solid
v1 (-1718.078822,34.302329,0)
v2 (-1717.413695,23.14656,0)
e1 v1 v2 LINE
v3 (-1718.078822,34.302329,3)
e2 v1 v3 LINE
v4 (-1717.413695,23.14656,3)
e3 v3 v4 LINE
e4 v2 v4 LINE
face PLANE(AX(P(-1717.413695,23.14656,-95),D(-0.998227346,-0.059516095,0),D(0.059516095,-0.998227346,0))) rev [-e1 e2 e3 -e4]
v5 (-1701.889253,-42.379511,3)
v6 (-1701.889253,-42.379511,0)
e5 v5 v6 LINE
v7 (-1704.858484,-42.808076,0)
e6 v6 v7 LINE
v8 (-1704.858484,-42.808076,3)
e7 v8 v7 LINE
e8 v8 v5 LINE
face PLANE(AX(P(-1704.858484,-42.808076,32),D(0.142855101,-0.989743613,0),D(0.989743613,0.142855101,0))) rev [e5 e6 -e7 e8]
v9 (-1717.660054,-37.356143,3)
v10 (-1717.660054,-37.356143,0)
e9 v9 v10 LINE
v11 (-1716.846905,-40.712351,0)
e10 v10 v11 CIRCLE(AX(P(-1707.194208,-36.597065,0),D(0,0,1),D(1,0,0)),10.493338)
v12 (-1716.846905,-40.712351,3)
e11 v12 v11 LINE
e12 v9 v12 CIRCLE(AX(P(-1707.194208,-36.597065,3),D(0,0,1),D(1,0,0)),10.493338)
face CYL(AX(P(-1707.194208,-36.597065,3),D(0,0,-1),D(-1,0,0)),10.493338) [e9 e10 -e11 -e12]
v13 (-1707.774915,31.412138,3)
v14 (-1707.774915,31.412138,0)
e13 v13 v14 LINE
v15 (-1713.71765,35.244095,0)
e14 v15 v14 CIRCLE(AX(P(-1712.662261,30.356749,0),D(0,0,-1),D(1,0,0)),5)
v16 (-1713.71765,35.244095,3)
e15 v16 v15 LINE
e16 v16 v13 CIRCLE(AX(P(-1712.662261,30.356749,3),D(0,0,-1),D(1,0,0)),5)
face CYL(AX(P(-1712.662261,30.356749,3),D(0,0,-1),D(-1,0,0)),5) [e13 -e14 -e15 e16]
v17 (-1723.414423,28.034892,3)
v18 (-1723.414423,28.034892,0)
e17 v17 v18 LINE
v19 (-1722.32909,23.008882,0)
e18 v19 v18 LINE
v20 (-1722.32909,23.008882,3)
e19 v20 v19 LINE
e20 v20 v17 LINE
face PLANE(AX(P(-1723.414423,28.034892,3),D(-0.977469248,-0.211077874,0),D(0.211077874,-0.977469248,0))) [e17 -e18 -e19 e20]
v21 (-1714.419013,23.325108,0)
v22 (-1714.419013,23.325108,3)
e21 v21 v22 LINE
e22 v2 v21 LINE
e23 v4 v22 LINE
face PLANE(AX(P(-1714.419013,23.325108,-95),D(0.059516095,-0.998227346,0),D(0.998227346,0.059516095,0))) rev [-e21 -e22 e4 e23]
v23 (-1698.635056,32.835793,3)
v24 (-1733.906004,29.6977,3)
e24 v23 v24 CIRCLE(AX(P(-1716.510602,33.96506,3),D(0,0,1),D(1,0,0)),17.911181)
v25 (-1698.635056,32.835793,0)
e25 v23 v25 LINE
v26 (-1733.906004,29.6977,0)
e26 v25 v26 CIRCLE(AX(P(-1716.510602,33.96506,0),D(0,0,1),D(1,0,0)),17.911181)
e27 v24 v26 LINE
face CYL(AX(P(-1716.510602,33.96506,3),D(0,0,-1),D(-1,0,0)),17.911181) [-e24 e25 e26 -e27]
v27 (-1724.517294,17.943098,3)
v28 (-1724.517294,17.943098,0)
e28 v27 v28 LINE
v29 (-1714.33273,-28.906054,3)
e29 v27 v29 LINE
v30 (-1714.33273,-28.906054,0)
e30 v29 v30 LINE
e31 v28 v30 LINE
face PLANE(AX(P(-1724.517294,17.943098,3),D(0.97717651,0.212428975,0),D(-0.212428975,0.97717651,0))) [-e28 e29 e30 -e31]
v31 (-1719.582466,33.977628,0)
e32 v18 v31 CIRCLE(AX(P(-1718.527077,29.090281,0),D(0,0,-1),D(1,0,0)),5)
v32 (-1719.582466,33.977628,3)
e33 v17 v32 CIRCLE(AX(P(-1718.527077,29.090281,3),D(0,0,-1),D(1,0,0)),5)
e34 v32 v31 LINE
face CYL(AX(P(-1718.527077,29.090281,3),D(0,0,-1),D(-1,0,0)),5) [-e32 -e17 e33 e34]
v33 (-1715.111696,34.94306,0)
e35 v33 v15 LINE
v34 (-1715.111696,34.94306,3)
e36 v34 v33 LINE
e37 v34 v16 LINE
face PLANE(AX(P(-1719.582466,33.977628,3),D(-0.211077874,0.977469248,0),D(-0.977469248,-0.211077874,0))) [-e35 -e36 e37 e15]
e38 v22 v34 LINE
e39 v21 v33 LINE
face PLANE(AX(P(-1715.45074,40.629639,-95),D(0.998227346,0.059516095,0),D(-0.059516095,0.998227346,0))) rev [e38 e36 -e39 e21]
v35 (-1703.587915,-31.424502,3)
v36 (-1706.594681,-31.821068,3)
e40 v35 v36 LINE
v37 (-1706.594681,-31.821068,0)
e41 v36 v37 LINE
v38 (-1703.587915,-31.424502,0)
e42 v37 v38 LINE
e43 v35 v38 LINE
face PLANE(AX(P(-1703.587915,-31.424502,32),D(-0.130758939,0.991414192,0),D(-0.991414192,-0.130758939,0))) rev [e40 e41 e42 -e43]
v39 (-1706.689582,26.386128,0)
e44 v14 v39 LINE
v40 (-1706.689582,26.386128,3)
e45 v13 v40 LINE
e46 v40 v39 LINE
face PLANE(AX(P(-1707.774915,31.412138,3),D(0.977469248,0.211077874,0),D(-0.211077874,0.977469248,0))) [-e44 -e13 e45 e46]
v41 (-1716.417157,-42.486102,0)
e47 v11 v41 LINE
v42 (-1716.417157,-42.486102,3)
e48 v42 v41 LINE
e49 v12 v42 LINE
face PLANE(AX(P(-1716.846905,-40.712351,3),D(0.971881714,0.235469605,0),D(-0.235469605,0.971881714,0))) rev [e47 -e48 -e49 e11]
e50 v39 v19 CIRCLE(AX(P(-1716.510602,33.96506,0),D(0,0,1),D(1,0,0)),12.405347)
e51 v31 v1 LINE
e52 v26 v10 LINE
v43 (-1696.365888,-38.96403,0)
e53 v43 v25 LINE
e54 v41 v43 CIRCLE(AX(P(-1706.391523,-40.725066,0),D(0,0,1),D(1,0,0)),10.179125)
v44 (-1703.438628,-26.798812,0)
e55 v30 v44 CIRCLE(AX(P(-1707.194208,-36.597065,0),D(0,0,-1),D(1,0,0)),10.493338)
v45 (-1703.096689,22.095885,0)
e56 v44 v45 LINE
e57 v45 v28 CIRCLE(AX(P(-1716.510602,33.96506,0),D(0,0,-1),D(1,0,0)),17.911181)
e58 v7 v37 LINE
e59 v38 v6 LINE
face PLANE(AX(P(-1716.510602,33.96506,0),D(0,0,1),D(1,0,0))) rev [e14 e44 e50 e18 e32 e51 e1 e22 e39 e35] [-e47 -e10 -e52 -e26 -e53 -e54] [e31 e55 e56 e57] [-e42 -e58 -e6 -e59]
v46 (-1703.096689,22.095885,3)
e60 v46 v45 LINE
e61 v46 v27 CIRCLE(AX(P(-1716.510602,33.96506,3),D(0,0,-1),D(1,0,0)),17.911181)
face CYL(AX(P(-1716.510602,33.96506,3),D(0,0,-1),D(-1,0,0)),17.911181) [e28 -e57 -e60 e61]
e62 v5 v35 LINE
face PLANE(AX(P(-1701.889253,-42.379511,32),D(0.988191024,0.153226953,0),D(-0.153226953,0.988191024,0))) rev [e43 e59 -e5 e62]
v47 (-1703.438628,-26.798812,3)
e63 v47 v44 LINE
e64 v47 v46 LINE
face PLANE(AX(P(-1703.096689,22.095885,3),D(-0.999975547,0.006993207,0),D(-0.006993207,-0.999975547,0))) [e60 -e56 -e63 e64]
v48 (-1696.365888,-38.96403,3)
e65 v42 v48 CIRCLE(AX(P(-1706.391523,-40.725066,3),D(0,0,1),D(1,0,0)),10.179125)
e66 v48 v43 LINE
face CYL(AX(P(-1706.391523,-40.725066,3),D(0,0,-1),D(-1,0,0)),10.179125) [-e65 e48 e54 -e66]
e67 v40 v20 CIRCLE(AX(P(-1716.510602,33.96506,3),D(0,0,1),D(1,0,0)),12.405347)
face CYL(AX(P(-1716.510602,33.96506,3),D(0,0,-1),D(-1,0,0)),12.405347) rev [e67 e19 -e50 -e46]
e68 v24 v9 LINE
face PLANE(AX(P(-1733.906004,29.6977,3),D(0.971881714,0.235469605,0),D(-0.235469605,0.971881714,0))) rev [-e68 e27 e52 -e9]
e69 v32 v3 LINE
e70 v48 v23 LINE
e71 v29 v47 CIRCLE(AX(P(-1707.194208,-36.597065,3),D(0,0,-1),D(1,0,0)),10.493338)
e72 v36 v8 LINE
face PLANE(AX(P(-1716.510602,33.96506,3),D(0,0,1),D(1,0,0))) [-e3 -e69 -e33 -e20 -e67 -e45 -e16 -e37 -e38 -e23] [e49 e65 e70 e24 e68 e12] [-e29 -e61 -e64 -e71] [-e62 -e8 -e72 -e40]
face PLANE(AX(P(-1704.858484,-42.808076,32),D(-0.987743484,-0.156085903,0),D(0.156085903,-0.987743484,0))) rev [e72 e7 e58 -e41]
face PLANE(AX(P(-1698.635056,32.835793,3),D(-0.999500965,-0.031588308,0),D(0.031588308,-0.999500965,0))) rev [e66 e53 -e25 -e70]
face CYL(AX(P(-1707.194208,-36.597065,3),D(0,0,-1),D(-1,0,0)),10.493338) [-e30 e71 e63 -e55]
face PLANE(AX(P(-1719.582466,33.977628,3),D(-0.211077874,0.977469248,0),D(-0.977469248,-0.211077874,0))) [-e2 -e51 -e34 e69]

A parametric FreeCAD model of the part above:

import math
import FreeCAD as App
import Part
import Sketcher
from FreeCAD import Vector

doc = App.newDocument("Part")
params = doc.addObject("Spreadsheet::Sheet", "Params")
for row, (alias, value) in enumerate([
    ("sketch1_radius", "5 mm"),
    ("sketch1_length", "6 mm"),
    ("pad1_length", "3 mm"),
    ("sketch2_length", "3 mm"),
    ("sketch2_length2", "10 mm"),
    ("pocket1_length", "98 mm"),
    ("sketch3_length", "3 mm"),
    ("pocket2_length", "32 mm"),
], start=1):
    params.set(f"A{row}", alias)
    params.set(f"B{row}", "=" + value)
    params.setAlias(f"B{row}", alias)

body = doc.addObject("PartDesign::Body", "Body")

sketch1 = body.newObject("Sketcher::SketchObject", "Sketch")
sketch1.AttachmentSupport = (doc.getObject("XY_Plane"), [""])
sketch1.MapMode = "FlatFace"
sketch1.addGeometry([
    Part.LineSegment(Vector(-1733.9, 29.7, 0), Vector(-1717.7, -37.4, 0)),
    Part.ArcOfCircle(Part.Circle(Vector(-1707.2, -36.6, 0), Vector(0, 0, 1), 10.5), math.radians(-175.85), math.radians(-156.91)),
    Part.LineSegment(Vector(-1716.8, -40.7, 0), Vector(-1716.4, -42.5, 0)),
    Part.ArcOfCircle(Part.Circle(Vector(-1706.4, -40.7, 0), Vector(0, 0, 1), 10.2), math.radians(-170), math.radians(10)),
    Part.LineSegment(Vector(-1696.4, -39, 0), Vector(-1698.6, 32.8, 0)),
    Part.ArcOfCircle(Part.Circle(Vector(-1716.5, 34, 0), Vector(0, 0, 1), 17.9), math.radians(-4), math.radians(194)),
    Part.ArcOfCircle(Part.Circle(Vector(-1716.5, 34, 0), Vector(0, 0, 1), 17.9), math.radians(-117), math.radians(-42)),
    Part.LineSegment(Vector(-1703.1, 22.1, 0), Vector(-1703.4, -26.8, 0)),
    Part.ArcOfCircle(Part.Circle(Vector(-1707.2, -36.6, 0), Vector(0, 0, 1), 10.5), math.radians(69), math.radians(133)),
    Part.LineSegment(Vector(-1714.3, -28.9, 0), Vector(-1724.5, 17.9, 0)),
    Part.LineSegment(Vector(-1713.7, 35.2, 0), Vector(-1719.6, 34, 0)),
    Part.ArcOfCircle(Part.Circle(Vector(-1718.5, 29.1, 0), Vector(0, 0, 1), 5), math.radians(102), math.radians(192)),
    Part.LineSegment(Vector(-1723.4, 28, 0), Vector(-1722.3, 23, 0)),
    Part.ArcOfCircle(Part.Circle(Vector(-1716.5, 34, 0), Vector(0, 0, 1), 12.4), math.radians(-38), math.radians(242)),
    Part.LineSegment(Vector(-1706.7, 26.4, 0), Vector(-1707.8, 31.4, 0)),
    Part.ArcOfCircle(Part.Circle(Vector(-1712.7, 30.4, 0), Vector(0, 0, 1), 5), math.radians(12), math.radians(102)),
], False)
sketch1.addConstraint([
    Sketcher.Constraint("Coincident", 0, 2, 1, 1),
    Sketcher.Constraint("Coincident", 1, 2, 2, 1),
    Sketcher.Constraint("Coincident", 2, 2, 3, 1),
    Sketcher.Constraint("Coincident", 3, 2, 4, 1),
    Sketcher.Constraint("Coincident", 4, 2, 5, 1),
    Sketcher.Constraint("Coincident", 5, 2, 0, 1),
    Sketcher.Constraint("Coincident", 6, 2, 7, 1),
    Sketcher.Constraint("Coincident", 7, 2, 8, 1),
    Sketcher.Constraint("Coincident", 8, 2, 9, 1),
    Sketcher.Constraint("Coincident", 9, 2, 6, 1),
    Sketcher.Constraint("Tangent", 10, 2, 11, 1),
    Sketcher.Constraint("Tangent", 11, 2, 12, 1),
    Sketcher.Constraint("Coincident", 12, 2, 13, 2),
    Sketcher.Constraint("Coincident", 13, 1, 14, 1),
    Sketcher.Constraint("Tangent", 14, 2, 15, 1),
    Sketcher.Constraint("Tangent", 15, 2, 10, 1),
    Sketcher.Constraint("Coincident", 6, 3, 5, 3),
    Sketcher.Constraint("Coincident", 8, 3, 1, 3),
    Sketcher.Constraint("Coincident", 13, 3, 5, 3),
    Sketcher.Constraint("Equal", 5, 6),
    Sketcher.Constraint("Equal", 1, 8),
    Sketcher.Constraint("Equal", 11, 15),
    Sketcher.Constraint("Parallel", 0, 2),
    Sketcher.Constraint("Perpendicular", 10, 12),
    Sketcher.Constraint("Parallel", 12, 14),
    Sketcher.Constraint("Equal", 12, 14),
    Sketcher.Constraint("Radius", 11, 5.0),
    Sketcher.Constraint("Distance", 10, 6.0),
    Sketcher.Constraint("Radius", 5, 17.911181),
    Sketcher.Constraint("Radius", 1, 10.493338),
    Sketcher.Constraint("Radius", 3, 10.179125),
    Sketcher.Constraint("Radius", 13, 12.405347),
    Sketcher.Constraint("DistanceY", 3, 3, 1, 3, 4.128001),
    Sketcher.Constraint("DistanceX", 5, 3, -1, 1, 1716.510602),
    Sketcher.Constraint("DistanceY", 2, 2, -1, 1, 42.486102),
    Sketcher.Constraint("DistanceY", -1, 1, 5, 2, 29.6977),
    Sketcher.Constraint("DistanceY", -1, 1, 9, 2, 17.943098),
    Sketcher.Constraint("DistanceY", 12, 2, 11, 3, 6.081399),
    Sketcher.Constraint("Distance", 0, 68.993831),
    Sketcher.Constraint("Distance", 2, 1.825068),
    Sketcher.Constraint("Distance", 4, 71.835671),
    Sketcher.Constraint("Distance", 12, 5.14186),
    Sketcher.Constraint("DistanceX", 1, 3, -1, 1, 1707.194208),
    Sketcher.Constraint("DistanceY", -1, 1, 5, 3, 33.96506),
    Sketcher.Constraint("DistanceX", 3, 2, -1, 1, 1696.365888),
    Sketcher.Constraint("DistanceY", 3, 2, -1, 1, 38.96403),
    Sketcher.Constraint("DistanceX", 6, 2, -1, 1, 1703.096689),
    Sketcher.Constraint("DistanceX", 8, 2, -1, 1, 1714.33273),
    Sketcher.Constraint("DistanceX", 1, 3, 7, 2, 3.75558),
])
sketch1.setExpression("Constraints[26]", "Params.sketch1_radius")
sketch1.setExpression("Constraints[27]", "Params.sketch1_length")
pad1 = body.newObject("PartDesign::Pad", "Pad")
pad1.Profile = sketch1
pad1.setExpression("Length", "Params.pad1_length")

sketch2 = body.newObject("Sketcher::SketchObject", "Sketch001")
sketch2.AttachmentSupport = (doc.getObject("XY_Plane"), [""])
sketch2.MapMode = "FlatFace"
sketch2.AttachmentOffset = App.Placement(Vector(0, 0, 3), App.Rotation())
sketch2.addGeometry([
    Part.LineSegment(Vector(-1714.4, 23.3, 0), Vector(-1715.5, 40.6, 0)),
    Part.LineSegment(Vector(-1715.5, 40.6, 0), Vector(-1718.4, 40.5, 0)),
    Part.LineSegment(Vector(-1718.4, 40.5, 0), Vector(-1718, 33.1, 0)),
    Part.LineSegment(Vector(-1718, 33.1, 0), Vector(-1717.4, 23.1, 0)),
    Part.LineSegment(Vector(-1717.4, 23.1, 0), Vector(-1714.4, 23.3, 0)),
], False)
sketch2.addConstraint([
    Sketcher.Constraint("Coincident", 0, 2, 1, 1),
    Sketcher.Constraint("Coincident", 1, 2, 2, 1),
    Sketcher.Constraint("Coincident", 2, 2, 3, 1),
    Sketcher.Constraint("Coincident", 3, 2, 4, 1),
    Sketcher.Constraint("Coincident", 4, 2, 0, 1),
    Sketcher.Constraint("Perpendicular", 0, 1),
    Sketcher.Constraint("Perpendicular", 1, 2),
    Sketcher.Constraint("Parallel", 2, 3),
    Sketcher.Constraint("Perpendicular", 3, 4),
    Sketcher.Constraint("Distance", 1, 3.0),
    Sketcher.Constraint("Distance", 3, 10.0),
    Sketcher.Constraint("Distance", 0, 17.33526),
    Sketcher.Constraint("DistanceX", 0, 2, -1, 1, 1715.45074),
    Sketcher.Constraint("DistanceY", -1, 1, 0, 2, 40.629639),
    Sketcher.Constraint("DistanceY", -1, 1, 1, 2, 40.451091),
])
sketch2.setExpression("Constraints[9]", "Params.sketch2_length")
sketch2.setExpression("Constraints[10]", "Params.sketch2_length2")
pocket1 = body.newObject("PartDesign::Pocket", "Pocket")
pocket1.Profile = sketch2
pocket1.setExpression("Length", "Params.pocket1_length")

sketch3 = body.newObject("Sketcher::SketchObject", "Sketch002")
sketch3.AttachmentSupport = (doc.getObject("XY_Plane"), [""])
sketch3.MapMode = "FlatFace"
sketch3.addGeometry([
    Part.LineSegment(Vector(-1704.9, -42.8, 0), Vector(-1706.6, -31.8, 0)),
    Part.LineSegment(Vector(-1706.6, -31.8, 0), Vector(-1703.6, -31.4, 0)),
    Part.LineSegment(Vector(-1703.6, -31.4, 0), Vector(-1701.9, -42.4, 0)),
    Part.LineSegment(Vector(-1701.9, -42.4, 0), Vector(-1704.9, -42.8, 0)),
], False)
sketch3.addConstraint([
    Sketcher.Constraint("Coincident", 0, 2, 1, 1),
    Sketcher.Constraint("Coincident", 1, 2, 2, 1),
    Sketcher.Constraint("Coincident", 2, 2, 3, 1),
    Sketcher.Constraint("Coincident", 3, 2, 0, 1),
    Sketcher.Constraint("Distance", 3, 3.0),
    Sketcher.Constraint("Distance", 0, 11.123341),
    Sketcher.Constraint("DistanceX", 0, 2, -1, 1, 1706.594681),
    Sketcher.Constraint("DistanceY", 0, 2, -1, 1, 31.821068),
    Sketcher.Constraint("DistanceY", 2, 2, -1, 1, 42.379511),
    Sketcher.Constraint("DistanceY", 2, 2, 1, 2, 10.955009),
    Sketcher.Constraint("DistanceX", 3, 2, 2, 2, 2.969231),
    Sketcher.Constraint("DistanceX", 3, 2, 1, 2, 1.270569),
])
sketch3.setExpression("Constraints[4]", "Params.sketch3_length")
pocket2 = body.newObject("PartDesign::Pocket", "Pocket001")
pocket2.Profile = sketch3
pocket2.setExpression("Length", "Params.pocket2_length")
pocket2.Reversed = True

doc.recompute()
